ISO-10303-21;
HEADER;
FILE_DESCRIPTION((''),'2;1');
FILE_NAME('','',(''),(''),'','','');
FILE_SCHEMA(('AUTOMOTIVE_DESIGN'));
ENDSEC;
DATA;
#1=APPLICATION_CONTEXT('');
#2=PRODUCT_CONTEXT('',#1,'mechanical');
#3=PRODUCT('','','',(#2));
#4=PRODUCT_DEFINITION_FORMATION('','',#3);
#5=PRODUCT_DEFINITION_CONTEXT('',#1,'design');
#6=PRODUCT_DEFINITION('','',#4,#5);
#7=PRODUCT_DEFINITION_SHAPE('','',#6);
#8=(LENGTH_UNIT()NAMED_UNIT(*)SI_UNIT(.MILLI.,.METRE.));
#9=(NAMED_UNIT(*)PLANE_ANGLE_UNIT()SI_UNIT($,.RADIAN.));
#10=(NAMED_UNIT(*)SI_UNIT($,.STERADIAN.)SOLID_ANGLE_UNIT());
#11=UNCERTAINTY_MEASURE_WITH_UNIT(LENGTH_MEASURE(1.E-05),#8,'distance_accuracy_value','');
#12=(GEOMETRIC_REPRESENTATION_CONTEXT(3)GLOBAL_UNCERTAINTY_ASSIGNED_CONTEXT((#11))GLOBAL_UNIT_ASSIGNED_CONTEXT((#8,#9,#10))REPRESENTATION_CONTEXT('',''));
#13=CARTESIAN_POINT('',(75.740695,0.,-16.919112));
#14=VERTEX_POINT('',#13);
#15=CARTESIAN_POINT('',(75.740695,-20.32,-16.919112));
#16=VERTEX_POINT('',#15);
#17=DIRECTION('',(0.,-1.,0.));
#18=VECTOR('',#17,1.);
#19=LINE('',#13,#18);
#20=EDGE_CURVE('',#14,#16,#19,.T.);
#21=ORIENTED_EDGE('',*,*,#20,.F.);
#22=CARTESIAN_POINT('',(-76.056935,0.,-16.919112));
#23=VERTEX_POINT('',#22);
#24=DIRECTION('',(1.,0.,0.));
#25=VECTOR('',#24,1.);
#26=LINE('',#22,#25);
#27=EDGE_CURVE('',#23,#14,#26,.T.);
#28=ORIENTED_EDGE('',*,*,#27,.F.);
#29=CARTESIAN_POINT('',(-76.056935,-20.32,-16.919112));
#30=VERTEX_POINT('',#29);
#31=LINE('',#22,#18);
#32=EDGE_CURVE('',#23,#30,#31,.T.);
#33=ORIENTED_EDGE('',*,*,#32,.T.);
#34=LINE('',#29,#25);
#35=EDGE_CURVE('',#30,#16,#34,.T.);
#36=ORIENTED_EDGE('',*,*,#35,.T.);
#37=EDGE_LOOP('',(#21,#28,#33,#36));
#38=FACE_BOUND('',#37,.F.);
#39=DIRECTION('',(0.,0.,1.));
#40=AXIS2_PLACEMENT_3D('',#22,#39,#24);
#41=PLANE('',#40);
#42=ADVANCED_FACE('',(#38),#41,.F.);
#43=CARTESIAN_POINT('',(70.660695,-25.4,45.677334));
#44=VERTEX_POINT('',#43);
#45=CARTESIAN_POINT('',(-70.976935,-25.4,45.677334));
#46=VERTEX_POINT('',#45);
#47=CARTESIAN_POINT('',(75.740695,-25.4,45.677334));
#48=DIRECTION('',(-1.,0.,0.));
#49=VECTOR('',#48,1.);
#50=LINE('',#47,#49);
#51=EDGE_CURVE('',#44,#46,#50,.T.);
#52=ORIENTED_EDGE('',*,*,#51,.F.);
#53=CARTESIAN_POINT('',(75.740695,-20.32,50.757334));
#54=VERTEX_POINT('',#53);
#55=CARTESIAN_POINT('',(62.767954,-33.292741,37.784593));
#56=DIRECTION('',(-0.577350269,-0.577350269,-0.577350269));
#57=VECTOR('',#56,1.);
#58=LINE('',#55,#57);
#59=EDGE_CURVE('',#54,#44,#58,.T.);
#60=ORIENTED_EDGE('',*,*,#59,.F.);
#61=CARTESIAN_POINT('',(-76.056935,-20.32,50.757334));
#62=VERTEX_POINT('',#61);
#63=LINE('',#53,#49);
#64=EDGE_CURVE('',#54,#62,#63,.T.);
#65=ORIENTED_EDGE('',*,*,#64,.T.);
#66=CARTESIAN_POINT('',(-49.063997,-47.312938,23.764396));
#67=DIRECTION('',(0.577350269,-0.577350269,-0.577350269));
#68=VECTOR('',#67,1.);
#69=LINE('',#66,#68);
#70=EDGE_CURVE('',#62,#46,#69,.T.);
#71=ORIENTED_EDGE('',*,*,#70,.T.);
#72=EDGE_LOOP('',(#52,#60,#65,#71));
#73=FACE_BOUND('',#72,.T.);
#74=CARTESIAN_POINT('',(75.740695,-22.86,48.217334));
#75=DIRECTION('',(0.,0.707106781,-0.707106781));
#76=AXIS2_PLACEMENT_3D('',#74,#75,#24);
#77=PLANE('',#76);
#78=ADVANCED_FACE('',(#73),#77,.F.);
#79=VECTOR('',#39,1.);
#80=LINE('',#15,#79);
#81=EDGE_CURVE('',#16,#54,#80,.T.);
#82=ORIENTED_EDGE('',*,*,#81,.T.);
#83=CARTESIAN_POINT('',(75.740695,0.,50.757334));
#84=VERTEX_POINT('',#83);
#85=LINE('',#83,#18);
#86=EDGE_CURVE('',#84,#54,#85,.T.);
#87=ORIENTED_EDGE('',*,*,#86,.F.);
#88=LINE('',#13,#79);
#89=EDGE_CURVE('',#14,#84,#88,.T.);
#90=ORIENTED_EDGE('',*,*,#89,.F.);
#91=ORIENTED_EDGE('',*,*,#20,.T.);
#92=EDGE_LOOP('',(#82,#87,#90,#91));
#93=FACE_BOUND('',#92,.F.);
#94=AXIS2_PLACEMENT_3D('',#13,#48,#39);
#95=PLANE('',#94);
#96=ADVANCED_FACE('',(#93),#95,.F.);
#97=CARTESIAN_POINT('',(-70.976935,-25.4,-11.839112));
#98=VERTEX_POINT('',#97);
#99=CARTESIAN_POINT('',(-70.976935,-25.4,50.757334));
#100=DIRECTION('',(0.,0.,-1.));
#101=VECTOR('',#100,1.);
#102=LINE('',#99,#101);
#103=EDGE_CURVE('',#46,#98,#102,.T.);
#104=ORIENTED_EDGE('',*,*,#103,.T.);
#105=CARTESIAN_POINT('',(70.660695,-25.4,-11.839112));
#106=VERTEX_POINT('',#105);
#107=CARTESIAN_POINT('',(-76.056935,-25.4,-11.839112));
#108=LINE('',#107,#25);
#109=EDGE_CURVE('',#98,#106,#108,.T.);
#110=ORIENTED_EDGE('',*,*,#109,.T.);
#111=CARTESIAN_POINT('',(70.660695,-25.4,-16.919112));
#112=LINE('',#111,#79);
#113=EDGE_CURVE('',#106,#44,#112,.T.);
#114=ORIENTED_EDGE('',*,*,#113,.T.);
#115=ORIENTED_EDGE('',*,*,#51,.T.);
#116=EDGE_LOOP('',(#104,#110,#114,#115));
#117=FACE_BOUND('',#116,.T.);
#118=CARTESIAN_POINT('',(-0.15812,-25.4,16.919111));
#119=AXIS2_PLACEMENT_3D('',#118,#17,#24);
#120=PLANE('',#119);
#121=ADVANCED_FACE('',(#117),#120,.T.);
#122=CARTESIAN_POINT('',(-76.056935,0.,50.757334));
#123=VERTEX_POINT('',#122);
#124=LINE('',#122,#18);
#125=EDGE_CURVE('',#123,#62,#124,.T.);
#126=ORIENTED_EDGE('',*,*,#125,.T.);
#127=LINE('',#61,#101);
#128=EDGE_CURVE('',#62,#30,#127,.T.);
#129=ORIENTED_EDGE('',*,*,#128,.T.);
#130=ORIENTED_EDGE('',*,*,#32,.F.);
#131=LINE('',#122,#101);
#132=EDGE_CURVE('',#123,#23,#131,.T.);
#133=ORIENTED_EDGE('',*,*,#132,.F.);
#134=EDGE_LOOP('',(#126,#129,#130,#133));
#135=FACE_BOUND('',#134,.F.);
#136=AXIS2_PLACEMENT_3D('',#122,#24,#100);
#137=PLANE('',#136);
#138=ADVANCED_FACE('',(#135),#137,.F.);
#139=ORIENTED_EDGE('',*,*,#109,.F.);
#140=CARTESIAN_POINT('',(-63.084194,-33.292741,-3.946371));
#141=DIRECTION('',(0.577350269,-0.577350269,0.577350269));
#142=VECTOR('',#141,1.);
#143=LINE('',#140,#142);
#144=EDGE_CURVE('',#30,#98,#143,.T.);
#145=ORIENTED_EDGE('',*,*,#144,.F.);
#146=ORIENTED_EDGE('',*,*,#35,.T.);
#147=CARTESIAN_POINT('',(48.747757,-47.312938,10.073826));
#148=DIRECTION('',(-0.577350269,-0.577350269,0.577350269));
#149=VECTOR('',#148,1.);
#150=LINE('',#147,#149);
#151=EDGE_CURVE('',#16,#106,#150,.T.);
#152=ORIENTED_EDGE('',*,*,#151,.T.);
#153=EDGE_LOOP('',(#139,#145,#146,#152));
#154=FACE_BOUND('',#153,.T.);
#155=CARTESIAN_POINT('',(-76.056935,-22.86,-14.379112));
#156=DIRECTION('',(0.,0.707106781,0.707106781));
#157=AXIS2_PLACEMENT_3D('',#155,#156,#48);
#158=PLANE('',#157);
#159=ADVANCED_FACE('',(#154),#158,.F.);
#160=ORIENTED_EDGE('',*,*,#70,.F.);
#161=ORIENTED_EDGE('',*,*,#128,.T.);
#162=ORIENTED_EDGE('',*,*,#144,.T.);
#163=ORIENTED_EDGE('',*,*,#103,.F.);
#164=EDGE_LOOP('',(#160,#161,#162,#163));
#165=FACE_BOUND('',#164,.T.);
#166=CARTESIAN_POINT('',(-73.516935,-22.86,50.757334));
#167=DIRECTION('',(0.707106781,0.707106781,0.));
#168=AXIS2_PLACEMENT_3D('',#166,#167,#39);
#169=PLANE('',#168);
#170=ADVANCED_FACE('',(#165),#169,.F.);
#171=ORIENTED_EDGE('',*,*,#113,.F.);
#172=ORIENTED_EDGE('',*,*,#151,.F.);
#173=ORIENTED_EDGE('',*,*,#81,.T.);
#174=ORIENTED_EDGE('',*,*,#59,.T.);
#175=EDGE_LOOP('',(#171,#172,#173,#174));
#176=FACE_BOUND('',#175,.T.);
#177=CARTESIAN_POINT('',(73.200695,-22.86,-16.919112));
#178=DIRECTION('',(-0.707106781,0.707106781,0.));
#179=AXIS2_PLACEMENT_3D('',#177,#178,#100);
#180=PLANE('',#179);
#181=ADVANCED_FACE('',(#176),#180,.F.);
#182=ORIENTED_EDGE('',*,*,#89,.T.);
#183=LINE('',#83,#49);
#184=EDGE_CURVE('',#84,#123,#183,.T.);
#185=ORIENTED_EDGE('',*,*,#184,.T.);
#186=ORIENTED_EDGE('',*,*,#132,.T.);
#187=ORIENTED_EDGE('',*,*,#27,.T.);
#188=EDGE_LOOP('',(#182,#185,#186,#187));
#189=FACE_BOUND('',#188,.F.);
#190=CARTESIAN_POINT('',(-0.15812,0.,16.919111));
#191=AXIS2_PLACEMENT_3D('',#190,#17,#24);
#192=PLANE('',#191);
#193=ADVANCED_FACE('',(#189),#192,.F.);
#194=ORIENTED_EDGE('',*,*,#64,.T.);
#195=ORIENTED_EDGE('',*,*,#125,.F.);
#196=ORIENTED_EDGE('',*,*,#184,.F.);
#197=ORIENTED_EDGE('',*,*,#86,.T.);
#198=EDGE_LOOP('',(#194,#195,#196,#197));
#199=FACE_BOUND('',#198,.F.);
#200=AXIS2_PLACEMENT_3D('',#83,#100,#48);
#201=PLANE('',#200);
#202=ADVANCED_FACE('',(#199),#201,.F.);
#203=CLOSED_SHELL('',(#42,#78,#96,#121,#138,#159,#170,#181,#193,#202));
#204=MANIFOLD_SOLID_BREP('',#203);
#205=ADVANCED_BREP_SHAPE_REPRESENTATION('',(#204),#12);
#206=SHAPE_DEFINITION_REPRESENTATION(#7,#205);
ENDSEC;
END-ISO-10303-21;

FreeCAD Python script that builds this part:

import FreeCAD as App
import Part
import Sketcher

V = App.Vector


def edges_at(feature, points):
    """Names of the edges that pass closest to the given points."""
    edges = feature.Shape.Edges
    near = lambda p: min(range(len(edges)), key=lambda i: edges[i].distToShape(Part.Vertex(*p))[0])
    return sorted({f"Edge{near(p) + 1}" for p in points})


def add_polygon(sketch, points):
    """Adds a closed chain of lines whose ends are joined by coincident constraints."""
    first, n = sketch.GeometryCount, len(points)
    for a, b in zip(points, points[1:] + points[:1]):
        sketch.addGeometry(Part.LineSegment(App.Vector(*a, 0), App.Vector(*b, 0)), False)
    for i in range(n):
        sketch.addConstraint(Sketcher.Constraint("Coincident", first + i, 2, first + (i + 1) % n, 1))

doc = App.newDocument("Part")
params = doc.addObject("Spreadsheet::Sheet", "Params")
for row, (alias, value) in enumerate([
    ("pad1_length", "1 in"),
    ("chamfer_size", "0.2 in"),
], start=1):
    params.set(f"A{row}", alias)
    params.set(f"B{row}", "=" + value)
    params.setAlias(f"B{row}", alias)

body = doc.addObject("PartDesign::Body", "Body")

# Sketch on XZ plane
sketch1 = body.newObject("Sketcher::SketchObject", "Sketch")
sketch1.AttachmentSupport = (doc.getObject("XZ_Plane"), [""])
sketch1.MapMode = "FlatFace"
add_polygon(sketch1, [(-76.056935, 50.757334), (-76.056935, -16.919112), (75.740695, -16.919112), (75.740695, 50.757334)])  # lines 0-3
sketch1.addConstraint(Sketcher.Constraint("Vertical", 0))
sketch1.addConstraint(Sketcher.Constraint("Horizontal", 1))
sketch1.addConstraint(Sketcher.Constraint("Vertical", 2))
sketch1.addConstraint(Sketcher.Constraint("Horizontal", 3))
sketch1.addConstraint(Sketcher.Constraint("DistanceX", 1, 1, 1, 2, 151.79763))
sketch1.addConstraint(Sketcher.Constraint("DistanceY", 0, 2, 0, 1, 67.676446))
sketch1.addConstraint(Sketcher.Constraint("DistanceY", 0, 2, -1, 1, 16.919112))
sketch1.addConstraint(Sketcher.Constraint("DistanceX", 0, 2, -1, 1, 76.056935))
pad1 = body.newObject("PartDesign::Pad", "Pad")
pad1.Profile = sketch1
pad1.setExpression("Length", "Params.pad1_length")
doc.recompute()

chamfer = body.newObject("PartDesign::Chamfer", "Chamfer")
chamfer.Base = (pad1, edges_at(pad1, [
    (-76.057, -25.4, 16.919),
    (-0.158, -25.4, -16.919),
    (75.741, -25.4, 16.919),
    (-0.158, -25.4, 50.757),
]))
chamfer.setExpression("Size", "Params.chamfer_size")

doc.recompute()
